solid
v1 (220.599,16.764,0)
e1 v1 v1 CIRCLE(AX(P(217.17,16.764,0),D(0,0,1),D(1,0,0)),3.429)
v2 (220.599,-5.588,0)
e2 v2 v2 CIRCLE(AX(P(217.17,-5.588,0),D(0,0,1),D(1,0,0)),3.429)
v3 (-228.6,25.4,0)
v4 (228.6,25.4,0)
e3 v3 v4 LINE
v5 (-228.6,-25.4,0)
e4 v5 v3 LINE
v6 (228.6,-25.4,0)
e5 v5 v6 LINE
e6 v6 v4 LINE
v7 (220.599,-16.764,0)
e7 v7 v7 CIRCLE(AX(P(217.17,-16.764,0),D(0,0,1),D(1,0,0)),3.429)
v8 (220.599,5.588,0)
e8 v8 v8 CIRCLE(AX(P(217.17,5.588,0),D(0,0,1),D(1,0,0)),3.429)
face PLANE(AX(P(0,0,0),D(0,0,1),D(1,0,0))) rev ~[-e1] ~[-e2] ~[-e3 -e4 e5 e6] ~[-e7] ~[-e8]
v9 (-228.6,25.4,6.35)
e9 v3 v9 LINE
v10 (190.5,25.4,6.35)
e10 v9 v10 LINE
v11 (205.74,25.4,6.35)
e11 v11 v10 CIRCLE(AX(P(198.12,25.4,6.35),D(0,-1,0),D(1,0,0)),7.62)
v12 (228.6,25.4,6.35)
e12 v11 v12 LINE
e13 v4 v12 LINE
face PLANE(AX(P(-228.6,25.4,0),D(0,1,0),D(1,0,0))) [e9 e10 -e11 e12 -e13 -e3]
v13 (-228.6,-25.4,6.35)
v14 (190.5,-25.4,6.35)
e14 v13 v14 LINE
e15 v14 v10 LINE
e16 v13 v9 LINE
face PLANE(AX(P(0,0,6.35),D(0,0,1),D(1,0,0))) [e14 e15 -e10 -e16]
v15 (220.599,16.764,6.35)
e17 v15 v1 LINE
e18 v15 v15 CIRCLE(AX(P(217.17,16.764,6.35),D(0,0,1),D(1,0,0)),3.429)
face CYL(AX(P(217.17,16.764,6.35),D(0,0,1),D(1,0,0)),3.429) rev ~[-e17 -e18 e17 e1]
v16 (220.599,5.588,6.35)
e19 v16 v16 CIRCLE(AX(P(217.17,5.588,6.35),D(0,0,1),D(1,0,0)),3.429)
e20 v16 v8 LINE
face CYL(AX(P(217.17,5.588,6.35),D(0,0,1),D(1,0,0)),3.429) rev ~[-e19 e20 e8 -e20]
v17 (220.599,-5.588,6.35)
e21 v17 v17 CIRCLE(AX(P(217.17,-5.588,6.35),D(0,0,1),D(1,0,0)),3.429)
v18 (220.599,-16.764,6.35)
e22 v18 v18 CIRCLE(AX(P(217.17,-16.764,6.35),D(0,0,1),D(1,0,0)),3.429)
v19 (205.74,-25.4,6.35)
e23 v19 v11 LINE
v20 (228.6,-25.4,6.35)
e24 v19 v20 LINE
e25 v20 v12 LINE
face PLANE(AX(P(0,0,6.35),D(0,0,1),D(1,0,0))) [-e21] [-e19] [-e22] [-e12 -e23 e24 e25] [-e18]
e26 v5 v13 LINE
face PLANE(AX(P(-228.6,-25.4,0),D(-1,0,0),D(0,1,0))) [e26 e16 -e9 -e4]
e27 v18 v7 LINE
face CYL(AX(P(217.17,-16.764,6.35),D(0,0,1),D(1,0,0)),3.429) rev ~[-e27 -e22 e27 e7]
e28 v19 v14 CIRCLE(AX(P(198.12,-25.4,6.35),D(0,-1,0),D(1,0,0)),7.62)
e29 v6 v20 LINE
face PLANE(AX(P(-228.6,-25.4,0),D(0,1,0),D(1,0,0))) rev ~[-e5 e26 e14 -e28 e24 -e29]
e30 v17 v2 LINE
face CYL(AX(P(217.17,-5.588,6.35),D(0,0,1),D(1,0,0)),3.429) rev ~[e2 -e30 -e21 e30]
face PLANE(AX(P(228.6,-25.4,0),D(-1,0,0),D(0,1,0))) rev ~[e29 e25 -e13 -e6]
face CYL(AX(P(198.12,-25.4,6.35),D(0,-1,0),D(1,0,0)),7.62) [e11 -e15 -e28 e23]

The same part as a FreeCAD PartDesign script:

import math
import FreeCAD as App
import Part
import Sketcher
Q = App.Units.Quantity


def add_polygon(sketch, points):
    """Adds a closed chain of lines whose ends are joined by coincident constraints."""
    first, n = sketch.GeometryCount, len(points)
    for a, b in zip(points, points[1:] + points[:1]):
        sketch.addGeometry(Part.LineSegment(App.Vector(*a, 0), App.Vector(*b, 0)), False)
    for i in range(n):
        sketch.addConstraint(Sketcher.Constraint("Coincident", first + i, 2, first + (i + 1) % n, 1))

doc = App.newDocument("Part")
body = doc.addObject("PartDesign::Body", "Body")

sketch1 = body.newObject("Sketcher::SketchObject", "Sketch")
sketch1.AttachmentSupport = (doc.getObject("XY_Plane"), [""])
sketch1.MapMode = "FlatFace"
add_polygon(sketch1, [(-228.6, 25.4), (-228.6, -25.4), (228.6, -25.4), (228.6, 25.4)])
sketch1.addConstraint([
    Sketcher.Constraint("Vertical", 0),
    Sketcher.Constraint("Horizontal", 1),
    Sketcher.Constraint("Vertical", 2),
    Sketcher.Constraint("Horizontal", 3),
    Sketcher.Constraint("Symmetric", 0, 2, 2, 2, -1, 1),
    Sketcher.Constraint("DistanceX", 1, 1, 1, 2, Q("18 in")),
    Sketcher.Constraint("DistanceY", 0, 2, 0, 1, Q("2 in")),
])
pad1 = body.newObject("PartDesign::Pad", "Pad")
pad1.Profile = sketch1
pad1.Length = Q("0.25 in")

sketch2 = body.newObject("Sketcher::SketchObject", "Sketch001")
sketch2.AttachmentSupport = (doc.getObject("XZ_Plane"), [""])
sketch2.MapMode = "FlatFace"
sketch2.AttachmentOffset = App.Placement(App.Vector(0, 0, 1 * 25.4), App.Rotation())
sketch2.addGeometry([
    Part.LineSegment(App.Vector(190.5, 6.35, 0), App.Vector(205.74, 6.35, 0)),
    Part.ArcOfCircle(Part.Circle(App.Vector(198.12, 6.35, 0), App.Vector(0, 0, 1), 7.62), math.radians(0), math.radians(180)),
], False)
sketch2.addConstraint([
    Sketcher.Constraint("Coincident", 0, 1, 1, 2),
    Sketcher.Constraint("Coincident", 1, 1, 0, 2),
    Sketcher.Constraint("Horizontal", 0),
    Sketcher.Constraint("Horizontal", 1, 3, 0, 1),
    Sketcher.Constraint("Radius", 1, Q("0.3 in")),
    Sketcher.Constraint("DistanceX", -1, 1, 1, 3, Q("7.8 in")),
    Sketcher.Constraint("DistanceY", -1, 1, 1, 3, Q("0.25 in")),
])
pad2 = body.newObject("PartDesign::Pad", "Pad001")
pad2.Profile = sketch2
pad2.Length = Q("2 in")
pad2.Reversed = True

sketch3 = body.newObject("Sketcher::SketchObject", "Sketch002")
sketch3.AttachmentSupport = (doc.getObject("XY_Plane"), [""])
sketch3.MapMode = "FlatFace"
sketch3.AttachmentOffset = App.Placement(App.Vector(0, 0, 0.25 * 25.4), App.Rotation())
sketch3.addGeometry([
    Part.Circle(App.Vector(217.17, -16.764, 0), App.Vector(0, 0, 1), 3.429),
    Part.Circle(App.Vector(217.17, -5.588, 0), App.Vector(0, 0, 1), 3.429),
    Part.Circle(App.Vector(217.17, 5.588, 0), App.Vector(0, 0, 1), 3.429),
    Part.Circle(App.Vector(217.17, 16.764, 0), App.Vector(0, 0, 1), 3.429),
], False)
sketch3.addConstraint([
    Sketcher.Constraint("Equal", 0, 1),
    Sketcher.Constraint("Equal", 1, 2),
    Sketcher.Constraint("Equal", 2, 3),
    Sketcher.Constraint("Symmetric", 1, 3, 2, 3, -1),
    Sketcher.Constraint("Symmetric", 0, 3, 3, 3, -1),
    Sketcher.Constraint("Vertical", 0, 3, 1, 3),
    Sketcher.Constraint("Diameter", 0, Q("0.27 in")),
    Sketcher.Constraint("DistanceX", -1, 1, 0, 3, Q("8.55 in")),
    Sketcher.Constraint("DistanceY", 0, 3, -1, 1, Q("0.66 in")),
    Sketcher.Constraint("DistanceY", 1, 3, -1, 1, Q("0.22 in")),
])
pocket1 = body.newObject("PartDesign::Pocket", "Pocket")
pocket1.Profile = sketch3
pocket1.Length = Q("1 in")

doc.recompute()
